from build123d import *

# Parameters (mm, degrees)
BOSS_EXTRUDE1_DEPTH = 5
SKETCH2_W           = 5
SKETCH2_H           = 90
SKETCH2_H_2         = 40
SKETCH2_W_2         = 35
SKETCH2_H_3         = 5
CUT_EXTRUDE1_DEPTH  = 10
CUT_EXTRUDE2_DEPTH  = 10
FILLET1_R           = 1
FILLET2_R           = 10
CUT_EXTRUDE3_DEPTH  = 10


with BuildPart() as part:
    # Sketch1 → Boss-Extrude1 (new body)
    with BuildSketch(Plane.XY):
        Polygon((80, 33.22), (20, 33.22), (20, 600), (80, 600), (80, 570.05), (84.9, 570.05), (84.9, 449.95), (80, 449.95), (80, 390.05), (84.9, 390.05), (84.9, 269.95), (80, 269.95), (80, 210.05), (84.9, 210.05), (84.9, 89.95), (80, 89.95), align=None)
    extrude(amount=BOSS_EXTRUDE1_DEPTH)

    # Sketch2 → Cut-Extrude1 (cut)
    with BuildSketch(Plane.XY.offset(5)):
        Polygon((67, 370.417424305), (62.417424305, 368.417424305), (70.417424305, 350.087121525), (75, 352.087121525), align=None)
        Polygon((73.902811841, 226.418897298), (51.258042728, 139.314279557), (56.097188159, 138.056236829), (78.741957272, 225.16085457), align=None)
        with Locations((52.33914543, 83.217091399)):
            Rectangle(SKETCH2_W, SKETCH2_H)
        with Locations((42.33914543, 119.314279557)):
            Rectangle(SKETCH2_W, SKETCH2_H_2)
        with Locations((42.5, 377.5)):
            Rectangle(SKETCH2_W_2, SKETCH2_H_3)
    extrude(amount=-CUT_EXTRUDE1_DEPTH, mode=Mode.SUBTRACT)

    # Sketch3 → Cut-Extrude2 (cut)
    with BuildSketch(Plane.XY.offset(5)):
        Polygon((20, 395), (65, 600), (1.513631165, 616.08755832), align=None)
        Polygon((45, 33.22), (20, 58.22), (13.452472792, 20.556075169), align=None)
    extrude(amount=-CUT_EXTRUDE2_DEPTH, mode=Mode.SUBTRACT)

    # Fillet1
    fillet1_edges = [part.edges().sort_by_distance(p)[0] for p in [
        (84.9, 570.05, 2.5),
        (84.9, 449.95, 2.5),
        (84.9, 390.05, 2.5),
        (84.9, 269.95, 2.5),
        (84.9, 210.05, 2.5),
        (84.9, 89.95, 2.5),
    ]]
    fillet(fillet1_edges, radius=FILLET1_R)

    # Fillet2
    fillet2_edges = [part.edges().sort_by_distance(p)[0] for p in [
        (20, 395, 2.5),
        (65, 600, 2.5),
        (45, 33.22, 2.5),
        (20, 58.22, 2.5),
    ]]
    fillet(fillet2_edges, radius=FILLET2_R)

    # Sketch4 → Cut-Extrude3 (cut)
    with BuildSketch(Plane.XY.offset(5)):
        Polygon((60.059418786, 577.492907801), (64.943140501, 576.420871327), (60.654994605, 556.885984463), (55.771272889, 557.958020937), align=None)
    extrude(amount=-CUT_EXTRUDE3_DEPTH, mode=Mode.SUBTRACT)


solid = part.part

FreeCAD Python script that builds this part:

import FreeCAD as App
import Part
import Sketcher

V = App.Vector
Q = App.Units.Quantity


def edges_at(feature, points):
    """Names of the edges that pass closest to the given points."""
    edges = feature.Shape.Edges
    near = lambda p: min(range(len(edges)), key=lambda i: edges[i].distToShape(Part.Vertex(*p))[0])
    return sorted({f"Edge{near(p) + 1}" for p in points})

doc = App.newDocument("Part")
body = doc.addObject("PartDesign::Body", "Body")

# Sketch on XY plane
sketch1 = doc.addObject("Sketcher::SketchObject", "Sketch")
body.addObject(sketch1)
sketch1.AttachmentSupport = (doc.XY_Plane, [""])
sketch1.MapMode = "FlatFace"
sketch1.addGeometry([
    Part.LineSegment(V(20, 33.2, 0), V(80, 33.2, 0)),  # 0
    Part.LineSegment(V(80, 33.2, 0), V(80, 90, 0)),  # 1
    Part.LineSegment(V(80, 90, 0), V(84.9, 90, 0)),  # 2
    Part.LineSegment(V(84.9, 90, 0), V(84.9, 210.1, 0)),  # 3
    Part.LineSegment(V(84.9, 210.1, 0), V(80, 210.1, 0)),  # 4
    Part.LineSegment(V(80, 210.1, 0), V(80, 269.9, 0)),  # 5
    Part.LineSegment(V(80, 269.9, 0), V(84.9, 269.9, 0)),  # 6
    Part.LineSegment(V(84.9, 269.9, 0), V(84.9, 390.1, 0)),  # 7
    Part.LineSegment(V(84.9, 390.1, 0), V(80, 390.1, 0)),  # 8
    Part.LineSegment(V(80, 390.1, 0), V(80, 449.9, 0)),  # 9
    Part.LineSegment(V(80, 449.9, 0), V(84.9, 449.9, 0)),  # 10
    Part.LineSegment(V(84.9, 449.9, 0), V(84.9, 570, 0)),  # 11
    Part.LineSegment(V(84.9, 570, 0), V(80, 570, 0)),  # 12
    Part.LineSegment(V(80, 570, 0), V(80, 600, 0)),  # 13
    Part.LineSegment(V(80, 600, 0), V(20, 600, 0)),  # 14
    Part.LineSegment(V(20, 600, 0), V(20, 33.2, 0)),  # 15
], False)
sketch1.addConstraint([
    Sketcher.Constraint("Coincident", 0, 2, 1, 1),
    Sketcher.Constraint("Coincident", 1, 2, 2, 1),
    Sketcher.Constraint("Coincident", 2, 2, 3, 1),
    Sketcher.Constraint("Coincident", 3, 2, 4, 1),
    Sketcher.Constraint("Coincident", 4, 2, 5, 1),
    Sketcher.Constraint("Coincident", 5, 2, 6, 1),
    Sketcher.Constraint("Coincident", 6, 2, 7, 1),
    Sketcher.Constraint("Coincident", 7, 2, 8, 1),
    Sketcher.Constraint("Coincident", 8, 2, 9, 1),
    Sketcher.Constraint("Coincident", 9, 2, 10, 1),
    Sketcher.Constraint("Coincident", 10, 2, 11, 1),
    Sketcher.Constraint("Coincident", 11, 2, 12, 1),
    Sketcher.Constraint("Coincident", 12, 2, 13, 1),
    Sketcher.Constraint("Coincident", 13, 2, 14, 1),
    Sketcher.Constraint("Coincident", 14, 2, 15, 1),
    Sketcher.Constraint("Coincident", 15, 2, 0, 1),
    Sketcher.Constraint("Horizontal", 0),
    Sketcher.Constraint("Vertical", 1),
    Sketcher.Constraint("Horizontal", 2),
    Sketcher.Constraint("Vertical", 3),
    Sketcher.Constraint("Horizontal", 4),
    Sketcher.Constraint("Vertical", 5),
    Sketcher.Constraint("Horizontal", 6),
    Sketcher.Constraint("Vertical", 7),
    Sketcher.Constraint("Horizontal", 8),
    Sketcher.Constraint("Vertical", 9),
    Sketcher.Constraint("Horizontal", 10),
    Sketcher.Constraint("Vertical", 11),
    Sketcher.Constraint("Horizontal", 12),
    Sketcher.Constraint("Vertical", 13),
    Sketcher.Constraint("Horizontal", 14),
    Sketcher.Constraint("Vertical", 15),
    Sketcher.Constraint("Vertical", 1, 2, 4, 2),
    Sketcher.Constraint("Vertical", 3, 2, 6, 2),
    Sketcher.Constraint("Vertical", 5, 2, 8, 2),
    Sketcher.Constraint("Vertical", 7, 2, 10, 2),
    Sketcher.Constraint("Vertical", 9, 2, 12, 2),
    Sketcher.Constraint("Equal", 3, 7),
    Sketcher.Constraint("Equal", 5, 9),
    Sketcher.Constraint("Equal", 7, 11),
    Sketcher.Constraint("DistanceX", 0, 1, 0, 2, Q("60 mm")),
    Sketcher.Constraint("DistanceX", 2, 1, 2, 2, Q("4.9 mm")),
    Sketcher.Constraint("DistanceY", 3, 1, 3, 2, Q("120.1 mm")),
    Sketcher.Constraint("DistanceY", 5, 1, 5, 2, Q("59.9 mm")),
    Sketcher.Constraint("DistanceX", -1, 1, 0, 2, Q("80 mm")),
    Sketcher.Constraint("DistanceY", -1, 1, 13, 2, Q("600 mm")),
    Sketcher.Constraint("DistanceY", 1, 1, 1, 2, Q("56.73 mm")),
    Sketcher.Constraint("DistanceY", 13, 1, 13, 2, Q("29.95 mm")),
])
pad1 = doc.addObject("PartDesign::Pad", "Pad")
body.addObject(pad1)
pad1.Profile = sketch1
pad1.Length = 5

# Sketch on XY plane
sketch2 = doc.addObject("Sketcher::SketchObject", "Sketch001")
body.addObject(sketch2)
sketch2.AttachmentSupport = (doc.XY_Plane, [""])
sketch2.MapMode = "FlatFace"
sketch2.AttachmentOffset = App.Placement(V(0, 0, 5), App.Rotation())
sketch2.addGeometry([
    Part.LineSegment(V(67, 370, 0), V(62, 368, 0)),  # 0
    Part.LineSegment(V(62, 368, 0), V(70, 350, 0)),  # 1
    Part.LineSegment(V(70, 350, 0), V(75, 352, 0)),  # 2
    Part.LineSegment(V(75, 352, 0), V(67, 370, 0)),  # 3
    Part.LineSegment(V(74, 226, 0), V(51, 139, 0)),  # 4
    Part.LineSegment(V(51, 139, 0), V(56, 138, 0)),  # 5
    Part.LineSegment(V(56, 138, 0), V(79, 225, 0)),  # 6
    Part.LineSegment(V(79, 225, 0), V(74, 226, 0)),  # 7
    Part.LineSegment(V(50, 128, 0), V(50, 38, 0)),  # 8
    Part.LineSegment(V(50, 38, 0), V(55, 38, 0)),  # 9
    Part.LineSegment(V(55, 38, 0), V(55, 128, 0)),  # 10
    Part.LineSegment(V(55, 128, 0), V(50, 128, 0)),  # 11
    Part.LineSegment(V(40, 139, 0), V(40, 99, 0)),  # 12
    Part.LineSegment(V(40, 99, 0), V(45, 99, 0)),  # 13
    Part.LineSegment(V(45, 99, 0), V(45, 139, 0)),  # 14
    Part.LineSegment(V(45, 139, 0), V(40, 139, 0)),  # 15
    Part.LineSegment(V(25, 380, 0), V(25, 375, 0)),  # 16
    Part.LineSegment(V(25, 375, 0), V(60, 375, 0)),  # 17
    Part.LineSegment(V(60, 375, 0), V(60, 380, 0)),  # 18
    Part.LineSegment(V(60, 380, 0), V(25, 380, 0)),  # 19
], False)
sketch2.addConstraint([
    Sketcher.Constraint("Coincident", 0, 2, 1, 1),
    Sketcher.Constraint("Coincident", 1, 2, 2, 1),
    Sketcher.Constraint("Coincident", 2, 2, 3, 1),
    Sketcher.Constraint("Coincident", 3, 2, 0, 1),
    Sketcher.Constraint("Coincident", 4, 2, 5, 1),
    Sketcher.Constraint("Coincident", 5, 2, 6, 1),
    Sketcher.Constraint("Coincident", 6, 2, 7, 1),
    Sketcher.Constraint("Coincident", 7, 2, 4, 1),
    Sketcher.Constraint("Coincident", 8, 2, 9, 1),
    Sketcher.Constraint("Coincident", 9, 2, 10, 1),
    Sketcher.Constraint("Coincident", 10, 2, 11, 1),
    Sketcher.Constraint("Coincident", 11, 2, 8, 1),
    Sketcher.Constraint("Coincident", 12, 2, 13, 1),
    Sketcher.Constraint("Coincident", 13, 2, 14, 1),
    Sketcher.Constraint("Coincident", 14, 2, 15, 1),
    Sketcher.Constraint("Coincident", 15, 2, 12, 1),
    Sketcher.Constraint("Coincident", 16, 2, 17, 1),
    Sketcher.Constraint("Coincident", 17, 2, 18, 1),
    Sketcher.Constraint("Coincident", 18, 2, 19, 1),
    Sketcher.Constraint("Coincident", 19, 2, 16, 1),
    Sketcher.Constraint("Vertical", 8),
    Sketcher.Constraint("Horizontal", 9),
    Sketcher.Constraint("Vertical", 10),
    Sketcher.Constraint("Horizontal", 11),
    Sketcher.Constraint("Vertical", 12),
    Sketcher.Constraint("Horizontal", 13),
    Sketcher.Constraint("Vertical", 14),
    Sketcher.Constraint("Horizontal", 15),
    Sketcher.Constraint("Vertical", 16),
    Sketcher.Constraint("Horizontal", 17),
    Sketcher.Constraint("Vertical", 18),
    Sketcher.Constraint("Horizontal", 19),
    Sketcher.Constraint("Perpendicular", 0, 1),
    Sketcher.Constraint("Perpendicular", 1, 2),
    Sketcher.Constraint("Perpendicular", 2, 3),
    Sketcher.Constraint("Perpendicular", 4, 5),
    Sketcher.Constraint("Perpendicular", 5, 6),
    Sketcher.Constraint("Perpendicular", 6, 7),
    Sketcher.Constraint("Horizontal", 4, 2, 14, 2),
    Sketcher.Constraint("Equal", 11, 13),
    Sketcher.Constraint("Equal", 15, 16),
    Sketcher.Constraint("Equal", 2, 5),
    Sketcher.Constraint("DistanceX", 9, 1, 9, 2, Q("5 mm")),
    Sketcher.Constraint("DistanceX", 17, 1, 17, 2, Q("35 mm")),
    Sketcher.Constraint("DistanceY", 8, 2, 8, 1, Q("90 mm")),
    Sketcher.Constraint("DistanceY", 12, 2, 12, 1, Q("40 mm")),
    Sketcher.Constraint("Distance", 0, Q("5 mm")),
    Sketcher.Constraint("Distance", 1, Q("20 mm")),
    Sketcher.Constraint("Distance", 4, Q("90 mm")),
    Sketcher.Constraint("DistanceX", -1, 1, 2, 2, Q("75 mm")),
    Sketcher.Constraint("DistanceX", -1, 1, 3, 2, Q("67 mm")),
    Sketcher.Constraint("DistanceX", -1, 1, 16, 2, Q("25 mm")),
    Sketcher.Constraint("DistanceY", -1, 1, 16, 2, Q("375 mm")),
    Sketcher.Constraint("DistanceX", 12, 2, 11, 2, Q("10 mm")),
    Sketcher.Constraint("DistanceY", -1, 1, 1, 2, Q("350.087122 mm")),
    Sketcher.Constraint("DistanceY", -1, 1, 4, 2, Q("139.31428 mm")),
    Sketcher.Constraint("DistanceX", -1, 1, 5, 2, Q("56.097188 mm")),
    Sketcher.Constraint("DistanceX", -1, 1, 7, 2, Q("73.902812 mm")),
    Sketcher.Constraint("DistanceY", -1, 1, 8, 2, Q("38.217091 mm")),
    Sketcher.Constraint("DistanceX", 8, 2, 6, 2, Q("28.902812 mm")),
])
pocket1 = doc.addObject("PartDesign::Pocket", "Pocket")
body.addObject(pocket1)
pocket1.Profile = sketch2
pocket1.Length = 10

# Sketch on XY plane
sketch3 = doc.addObject("Sketcher::SketchObject", "Sketch002")
body.addObject(sketch3)
sketch3.AttachmentSupport = (doc.XY_Plane, [""])
sketch3.MapMode = "FlatFace"
sketch3.AttachmentOffset = App.Placement(V(0, 0, 5), App.Rotation())
sketch3.addGeometry([
    Part.LineSegment(V(20, 395, 0), V(65, 600, 0)),  # 0
    Part.LineSegment(V(65, 600, 0), V(2, 616, 0)),  # 1
    Part.LineSegment(V(2, 616, 0), V(20, 395, 0)),  # 2
    Part.LineSegment(V(45, 33, 0), V(20, 58, 0)),  # 3
    Part.LineSegment(V(20, 58, 0), V(13, 21, 0)),  # 4
    Part.LineSegment(V(13, 21, 0), V(45, 33, 0)),  # 5
], False)
sketch3.addConstraint([
    Sketcher.Constraint("Coincident", 0, 2, 1, 1),
    Sketcher.Constraint("Coincident", 1, 2, 2, 1),
    Sketcher.Constraint("Coincident", 2, 2, 0, 1),
    Sketcher.Constraint("Coincident", 3, 2, 4, 1),
    Sketcher.Constraint("Coincident", 4, 2, 5, 1),
    Sketcher.Constraint("Coincident", 5, 2, 3, 1),
    Sketcher.Constraint("Vertical", 2, 2, 3, 2),
    Sketcher.Constraint("Angle", 3, Q("135 deg")),
    Sketcher.Constraint("DistanceX", -1, 1, 0, 2, Q("65 mm")),
    Sketcher.Constraint("DistanceY", -1, 1, 0, 2, Q("600 mm")),
    Sketcher.Constraint("DistanceX", -1, 1, 2, 2, Q("20 mm")),
    Sketcher.Constraint("DistanceY", -1, 1, 2, 2, Q("395 mm")),
    Sketcher.Constraint("DistanceX", -1, 1, 5, 2, Q("45 mm")),
    Sketcher.Constraint("DistanceY", -1, 1, 3, 2, Q("58.22 mm")),
    Sketcher.Constraint("DistanceX", -1, 1, 1, 2, Q("1.513631 mm")),
    Sketcher.Constraint("DistanceY", -1, 1, 1, 2, Q("616.087558 mm")),
    Sketcher.Constraint("DistanceX", 1, 2, 4, 2, Q("11.938842 mm")),
    Sketcher.Constraint("Distance", 4, Q("38.228803 mm")),
])
pocket2 = doc.addObject("PartDesign::Pocket", "Pocket001")
body.addObject(pocket2)
pocket2.Profile = sketch3
pocket2.Length = 10
doc.recompute()

fillet = doc.addObject("PartDesign::Fillet", "Fillet")
body.addObject(fillet)
fillet.Base = (pocket2, edges_at(pocket2, [
    (84.9, 570.05, 2.5),
    (84.9, 449.95, 2.5),
    (84.9, 390.05, 2.5),
    (84.9, 269.95, 2.5),
    (84.9, 210.05, 2.5),
    (84.9, 89.95, 2.5),
]))
fillet.Radius = 1
doc.recompute()

fillet2 = doc.addObject("PartDesign::Fillet", "Fillet001")
body.addObject(fillet2)
fillet2.Base = (fillet, edges_at(fillet, [
    (20, 395, 2.5),
    (65, 600, 2.5),
    (45, 33.22, 2.5),
    (20, 58.22, 2.5),
]))
fillet2.Radius = 10

# Sketch on XY plane
sketch4 = doc.addObject("Sketcher::SketchObject", "Sketch003")
body.addObject(sketch4)
sketch4.AttachmentSupport = (doc.XY_Plane, [""])
sketch4.MapMode = "FlatFace"
sketch4.AttachmentOffset = App.Placement(V(0, 0, 5), App.Rotation())
sketch4.addGeometry([
    Part.LineSegment(V(64.9, 576.4, 0), V(60.1, 577.5, 0)),
    Part.LineSegment(V(60.1, 577.5, 0), V(55.8, 558, 0)),
    Part.LineSegment(V(55.8, 558, 0), V(60.7, 556.9, 0)),
    Part.LineSegment(V(60.7, 556.9, 0), V(64.9, 576.4, 0)),
], False)
sketch4.addConstraint([
    Sketcher.Constraint("Coincident", 0, 2, 1, 1),
    Sketcher.Constraint("Coincident", 1, 2, 2, 1),
    Sketcher.Constraint("Coincident", 2, 2, 3, 1),
    Sketcher.Constraint("Coincident", 3, 2, 0, 1),
    Sketcher.Constraint("Perpendicular", 0, 1),
    Sketcher.Constraint("Perpendicular", 1, 2),
    Sketcher.Constraint("Perpendicular", 2, 3),
    Sketcher.Constraint("Distance", 0, Q("5 mm")),
    Sketcher.Constraint("Distance", 1, Q("20 mm")),
    Sketcher.Constraint("DistanceX", -1, 1, 0, 2, Q("60.059419 mm")),
    Sketcher.Constraint("DistanceY", -1, 1, 1, 2, Q("557.958021 mm")),
    Sketcher.Constraint("DistanceX", -1, 1, 3, 2, Q("64.943141 mm")),
])
pocket3 = doc.addObject("PartDesign::Pocket", "Pocket002")
body.addObject(pocket3)
pocket3.Profile = sketch4
pocket3.Length = 10

doc.recompute()
